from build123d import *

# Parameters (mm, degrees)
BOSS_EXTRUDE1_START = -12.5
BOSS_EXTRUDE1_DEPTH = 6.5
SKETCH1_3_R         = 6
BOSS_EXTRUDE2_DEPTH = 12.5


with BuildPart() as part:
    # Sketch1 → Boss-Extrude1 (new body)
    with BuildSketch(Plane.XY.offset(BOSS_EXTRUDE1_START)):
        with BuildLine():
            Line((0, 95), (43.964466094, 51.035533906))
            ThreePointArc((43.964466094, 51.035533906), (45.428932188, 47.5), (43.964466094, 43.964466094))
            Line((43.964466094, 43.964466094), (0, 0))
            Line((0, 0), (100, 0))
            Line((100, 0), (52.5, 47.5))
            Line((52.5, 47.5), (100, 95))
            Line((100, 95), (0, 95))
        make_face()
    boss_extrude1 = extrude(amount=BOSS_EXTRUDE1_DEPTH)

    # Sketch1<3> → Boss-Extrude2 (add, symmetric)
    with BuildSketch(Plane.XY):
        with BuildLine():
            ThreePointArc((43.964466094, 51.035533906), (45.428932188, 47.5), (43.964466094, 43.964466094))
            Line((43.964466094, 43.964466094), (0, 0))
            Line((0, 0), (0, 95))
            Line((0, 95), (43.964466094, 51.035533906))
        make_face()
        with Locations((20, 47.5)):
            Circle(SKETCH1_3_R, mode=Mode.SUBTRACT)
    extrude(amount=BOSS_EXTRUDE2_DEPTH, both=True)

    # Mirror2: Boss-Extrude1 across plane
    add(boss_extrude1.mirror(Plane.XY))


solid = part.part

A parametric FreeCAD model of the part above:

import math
import FreeCAD as App
import Part
import Sketcher

doc = App.newDocument("Part")
body = doc.addObject("PartDesign::Body", "Body")

# Sketch on XY plane
sketch1 = doc.addObject("Sketcher::SketchObject", "Sketch")
body.addObject(sketch1)
sketch1.AttachmentSupport = (doc.XY_Plane, [""])
sketch1.MapMode = "FlatFace"
sketch1.AttachmentOffset = App.Placement(App.Vector(0, 0, -12.5), App.Rotation())
sketch1.addGeometry([
    Part.LineSegment(App.Vector(0, 95, 0), App.Vector(43.964466, 51.035534, 0)),  # 0
    Part.ArcOfCircle(Part.Circle(App.Vector(40.428932, 47.5, 0), App.Vector(0, 0, 1), 5), math.radians(-45), math.radians(45)),  # 1
    Part.LineSegment(App.Vector(43.964466, 43.964466, 0), App.Vector(0, 0, 0)),  # 2
    Part.LineSegment(App.Vector(0, 0, 0), App.Vector(100, 0, 0)),  # 3
    Part.LineSegment(App.Vector(100, 0, 0), App.Vector(52.5, 47.5, 0)),  # 4
    Part.LineSegment(App.Vector(52.5, 47.5, 0), App.Vector(100, 95, 0)),  # 5
    Part.LineSegment(App.Vector(100, 95, 0), App.Vector(0, 95, 0)),  # 6
], False)
sketch1.addConstraint([
    Sketcher.Constraint("Tangent", 0, 2, 1, 2),
    Sketcher.Constraint("Tangent", 1, 1, 2, 1),
    Sketcher.Constraint("Coincident", 2, 2, 3, 1),
    Sketcher.Constraint("Coincident", 3, 2, 4, 1),
    Sketcher.Constraint("Coincident", 4, 2, 5, 1),
    Sketcher.Constraint("Coincident", 5, 2, 6, 1),
    Sketcher.Constraint("Coincident", 6, 2, 0, 1),
    Sketcher.Constraint("Horizontal", 3),
    Sketcher.Constraint("Horizontal", 6),
    Sketcher.Constraint("Coincident", 2, 2, -1, 1),
    Sketcher.Constraint("PointOnObject", 6, 2, -2),
    Sketcher.Constraint("Perpendicular", 0, 2),
    Sketcher.Constraint("Perpendicular", 2, 4),
    Sketcher.Constraint("Perpendicular", 4, 5),
    Sketcher.Constraint("Horizontal", 1, 3, 4, 2),
    Sketcher.Constraint("Vertical", 0, 2, 1, 1),
    Sketcher.Constraint("Radius", 1, 5.0),
    Sketcher.Constraint("DistanceX", 3, 1, 3, 2, 100.0),
    Sketcher.Constraint("DistanceY", -1, 1, 5, 2, 95.0),
])
pad1 = doc.addObject("PartDesign::Pad", "Pad")
body.addObject(pad1)
pad1.Profile = sketch1
pad1.Length = 6.5

# Sketch on XY plane
sketch2 = doc.addObject("Sketcher::SketchObject", "Sketch001")
body.addObject(sketch2)
sketch2.AttachmentSupport = (doc.XY_Plane, [""])
sketch2.MapMode = "FlatFace"
sketch2.addGeometry([
    Part.ArcOfCircle(Part.Circle(App.Vector(40.428932, 47.5, 0), App.Vector(0, 0, 1), 5), math.radians(-45), math.radians(45)),  # 0
    Part.LineSegment(App.Vector(43.964466, 51.035534, 0), App.Vector(0, 95, 0)),  # 1
    Part.LineSegment(App.Vector(0, 95, 0), App.Vector(0, 0, 0)),  # 2
    Part.LineSegment(App.Vector(0, 0, 0), App.Vector(43.964466, 43.964466, 0)),  # 3
    Part.Circle(App.Vector(20, 47.5, 0), App.Vector(0, 0, 1), 6),  # 4
], False)
sketch2.addConstraint([
    Sketcher.Constraint("Tangent", 0, 2, 1, 1),
    Sketcher.Constraint("Coincident", 1, 2, 2, 1),
    Sketcher.Constraint("Coincident", 2, 2, 3, 1),
    Sketcher.Constraint("Tangent", 3, 2, 0, 1),
    Sketcher.Constraint("Vertical", 2),
    Sketcher.Constraint("Coincident", 2, 2, -1, 1),
    Sketcher.Constraint("Perpendicular", 1, 3),
    Sketcher.Constraint("Horizontal", 0, 3, 4, 3),
    Sketcher.Constraint("Vertical", 0, 2, 3, 2),
    Sketcher.Constraint("Diameter", 4, 12.0),
    Sketcher.Constraint("Radius", 0, 5.0),
    Sketcher.Constraint("DistanceY", 2, 2, 2, 1, 95.0),
    Sketcher.Constraint("DistanceX", -1, 1, 4, 3, 20.0),
])
pad2 = doc.addObject("PartDesign::Pad", "Pad001")
body.addObject(pad2)
pad2.Profile = sketch2
pad2.Length = 25
pad2.Midplane = True
doc.recompute()

mirrored = doc.addObject("PartDesign::Mirrored", "Mirrored")
body.addObject(mirrored)
mirrored.Originals = [pad1]
mirrored.MirrorPlane = (doc.XY_Plane, [""])
body.Tip = mirrored

doc.recompute()
